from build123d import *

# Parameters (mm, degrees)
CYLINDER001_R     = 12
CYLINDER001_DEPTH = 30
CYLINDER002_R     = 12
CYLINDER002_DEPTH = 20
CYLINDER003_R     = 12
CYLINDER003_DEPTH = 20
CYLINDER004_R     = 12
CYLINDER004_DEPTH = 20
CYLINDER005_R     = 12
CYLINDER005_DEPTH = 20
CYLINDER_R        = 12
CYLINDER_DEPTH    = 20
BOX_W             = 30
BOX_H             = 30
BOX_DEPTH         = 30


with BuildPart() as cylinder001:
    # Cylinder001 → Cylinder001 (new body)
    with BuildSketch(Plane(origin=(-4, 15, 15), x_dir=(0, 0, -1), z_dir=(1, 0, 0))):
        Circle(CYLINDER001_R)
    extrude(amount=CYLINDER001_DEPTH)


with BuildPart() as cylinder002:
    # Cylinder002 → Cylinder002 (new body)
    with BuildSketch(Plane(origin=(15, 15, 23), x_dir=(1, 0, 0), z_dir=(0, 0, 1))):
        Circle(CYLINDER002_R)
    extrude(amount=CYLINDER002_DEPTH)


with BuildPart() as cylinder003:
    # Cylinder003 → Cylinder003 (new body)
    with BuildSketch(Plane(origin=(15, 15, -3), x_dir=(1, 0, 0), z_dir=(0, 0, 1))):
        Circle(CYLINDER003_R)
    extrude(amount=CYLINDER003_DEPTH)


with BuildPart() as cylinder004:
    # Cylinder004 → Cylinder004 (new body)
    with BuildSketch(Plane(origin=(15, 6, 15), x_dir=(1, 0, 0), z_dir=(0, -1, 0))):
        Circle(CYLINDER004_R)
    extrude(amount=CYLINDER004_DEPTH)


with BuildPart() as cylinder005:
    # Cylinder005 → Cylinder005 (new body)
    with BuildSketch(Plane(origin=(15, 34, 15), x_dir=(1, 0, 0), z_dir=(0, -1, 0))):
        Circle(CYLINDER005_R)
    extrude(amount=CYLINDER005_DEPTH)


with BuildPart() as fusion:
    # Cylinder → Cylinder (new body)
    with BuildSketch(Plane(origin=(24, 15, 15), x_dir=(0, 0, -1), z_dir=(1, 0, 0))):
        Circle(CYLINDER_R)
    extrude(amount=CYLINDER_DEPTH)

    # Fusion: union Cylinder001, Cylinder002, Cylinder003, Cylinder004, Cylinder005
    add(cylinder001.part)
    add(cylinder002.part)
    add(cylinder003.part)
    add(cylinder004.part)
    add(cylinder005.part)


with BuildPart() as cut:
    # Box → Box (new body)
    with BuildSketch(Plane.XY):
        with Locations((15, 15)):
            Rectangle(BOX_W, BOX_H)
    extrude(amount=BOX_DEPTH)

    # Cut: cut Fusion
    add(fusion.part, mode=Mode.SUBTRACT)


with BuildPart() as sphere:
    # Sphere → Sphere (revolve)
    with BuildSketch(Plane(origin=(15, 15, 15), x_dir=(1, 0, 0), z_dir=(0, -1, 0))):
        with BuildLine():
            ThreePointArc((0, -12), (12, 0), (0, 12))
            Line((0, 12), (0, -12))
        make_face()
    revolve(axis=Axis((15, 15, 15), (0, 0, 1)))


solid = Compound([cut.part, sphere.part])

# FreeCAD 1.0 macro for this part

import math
import FreeCAD as App
import Part
import Sketcher


def add_polygon(sketch, points):
    """Adds a closed chain of lines whose ends are joined by coincident constraints."""
    first, n = sketch.GeometryCount, len(points)
    for a, b in zip(points, points[1:] + points[:1]):
        sketch.addGeometry(Part.LineSegment(App.Vector(*a, 0), App.Vector(*b, 0)), False)
    for i in range(n):
        sketch.addConstraint(Sketcher.Constraint("Coincident", first + i, 2, first + (i + 1) % n, 1))

doc = App.newDocument("Part")
body = doc.addObject("PartDesign::Body", "Body")

# Sketch on YZ plane
sketch1 = body.newObject("Sketcher::SketchObject", "Sketch")
sketch1.AttachmentSupport = (doc.getObject("YZ_Plane"), [""])
sketch1.MapMode = "FlatFace"
sketch1.AttachmentOffset = App.Placement(App.Vector(0, 0, -4), App.Rotation())
sketch1.addGeometry(Part.Circle(App.Vector(15, 15, 0), App.Vector(0, 0, 1), 12), False)
sketch1.addConstraint([
    Sketcher.Constraint("Diameter", 0, 24.0),
    Sketcher.Constraint("DistanceX", -1, 1, 0, 3, 15.0),
    Sketcher.Constraint("DistanceY", -1, 1, 0, 3, 15.0),
])
pad1 = body.newObject("PartDesign::Pad", "Pad")
pad1.Profile = sketch1
pad1.Length = 30
body2 = doc.addObject("PartDesign::Body", "Body001")

# Sketch on XY plane
sketch2 = body2.newObject("Sketcher::SketchObject", "Sketch001")
sketch2.AttachmentSupport = (doc.getObject("XY_Plane001"), [""])
sketch2.MapMode = "FlatFace"
sketch2.AttachmentOffset = App.Placement(App.Vector(0, 0, 23), App.Rotation())
sketch2.addGeometry(Part.Circle(App.Vector(15, 15, 0), App.Vector(0, 0, 1), 12), False)
sketch2.addConstraint([
    Sketcher.Constraint("Diameter", 0, 24.0),
    Sketcher.Constraint("DistanceX", -1, 1, 0, 3, 15.0),
    Sketcher.Constraint("DistanceY", -1, 1, 0, 3, 15.0),
])
pad2 = body2.newObject("PartDesign::Pad", "Pad001")
pad2.Profile = sketch2
pad2.Length = 20
body3 = doc.addObject("PartDesign::Body", "Body002")

# Sketch on XY plane
sketch3 = body3.newObject("Sketcher::SketchObject", "Sketch002")
sketch3.AttachmentSupport = (doc.getObject("XY_Plane002"), [""])
sketch3.MapMode = "FlatFace"
sketch3.AttachmentOffset = App.Placement(App.Vector(0, 0, -3), App.Rotation())
sketch3.addGeometry(Part.Circle(App.Vector(15, 15, 0), App.Vector(0, 0, 1), 12), False)
sketch3.addConstraint([
    Sketcher.Constraint("Diameter", 0, 24.0),
    Sketcher.Constraint("DistanceX", -1, 1, 0, 3, 15.0),
    Sketcher.Constraint("DistanceY", -1, 1, 0, 3, 15.0),
])
pad3 = body3.newObject("PartDesign::Pad", "Pad002")
pad3.Profile = sketch3
pad3.Length = 20
body4 = doc.addObject("PartDesign::Body", "Body003")

# Sketch on XZ plane
sketch4 = body4.newObject("Sketcher::SketchObject", "Sketch003")
sketch4.AttachmentSupport = (doc.getObject("XZ_Plane003"), [""])
sketch4.MapMode = "FlatFace"
sketch4.AttachmentOffset = App.Placement(App.Vector(0, 0, -6), App.Rotation())
sketch4.addGeometry(Part.Circle(App.Vector(15, 15, 0), App.Vector(0, 0, 1), 12), False)
sketch4.addConstraint([
    Sketcher.Constraint("Diameter", 0, 24.0),
    Sketcher.Constraint("DistanceX", -1, 1, 0, 3, 15.0),
    Sketcher.Constraint("DistanceY", -1, 1, 0, 3, 15.0),
])
pad4 = body4.newObject("PartDesign::Pad", "Pad003")
pad4.Profile = sketch4
pad4.Length = 20
body5 = doc.addObject("PartDesign::Body", "Body004")

# Sketch on XZ plane
sketch5 = body5.newObject("Sketcher::SketchObject", "Sketch004")
sketch5.AttachmentSupport = (doc.getObject("XZ_Plane004"), [""])
sketch5.MapMode = "FlatFace"
sketch5.AttachmentOffset = App.Placement(App.Vector(0, 0, -34), App.Rotation())
sketch5.addGeometry(Part.Circle(App.Vector(15, 15, 0), App.Vector(0, 0, 1), 12), False)
sketch5.addConstraint([
    Sketcher.Constraint("Diameter", 0, 24.0),
    Sketcher.Constraint("DistanceX", -1, 1, 0, 3, 15.0),
    Sketcher.Constraint("DistanceY", -1, 1, 0, 3, 15.0),
])
pad5 = body5.newObject("PartDesign::Pad", "Pad004")
pad5.Profile = sketch5
pad5.Length = 20
body6 = doc.addObject("PartDesign::Body", "Body005")

# Sketch on YZ plane
sketch6 = body6.newObject("Sketcher::SketchObject", "Sketch005")
sketch6.AttachmentSupport = (doc.getObject("YZ_Plane005"), [""])
sketch6.MapMode = "FlatFace"
sketch6.AttachmentOffset = App.Placement(App.Vector(0, 0, 24), App.Rotation())
sketch6.addGeometry(Part.Circle(App.Vector(15, 15, 0), App.Vector(0, 0, 1), 12), False)
sketch6.addConstraint([
    Sketcher.Constraint("Diameter", 0, 24.0),
    Sketcher.Constraint("DistanceX", -1, 1, 0, 3, 15.0),
    Sketcher.Constraint("DistanceY", -1, 1, 0, 3, 15.0),
])
pad6 = body6.newObject("PartDesign::Pad", "Pad005")
pad6.Profile = sketch6
pad6.Length = 20
doc.recompute()

boolean = body6.newObject("PartDesign::Boolean", "Boolean")
boolean.Type = "Fuse"
boolean.addObjects([body])
doc.recompute()

boolean2 = body6.newObject("PartDesign::Boolean", "Boolean001")
boolean2.Type = "Fuse"
boolean2.addObjects([body2])
doc.recompute()

boolean3 = body6.newObject("PartDesign::Boolean", "Boolean002")
boolean3.Type = "Fuse"
boolean3.addObjects([body3])
doc.recompute()

boolean4 = body6.newObject("PartDesign::Boolean", "Boolean003")
boolean4.Type = "Fuse"
boolean4.addObjects([body4])
doc.recompute()

boolean5 = body6.newObject("PartDesign::Boolean", "Boolean004")
boolean5.Type = "Fuse"
boolean5.addObjects([body5])
body7 = doc.addObject("PartDesign::Body", "Body006")

# Sketch on XY plane
sketch7 = body7.newObject("Sketcher::SketchObject", "Sketch006")
sketch7.AttachmentSupport = (doc.getObject("XY_Plane006"), [""])
sketch7.MapMode = "FlatFace"
add_polygon(sketch7, [(0, 30), (0, 0), (30, 0), (30, 30)])  # lines 0-3
sketch7.addConstraint([
    Sketcher.Constraint("Vertical", 0),
    Sketcher.Constraint("Horizontal", 1),
    Sketcher.Constraint("Vertical", 2),
    Sketcher.Constraint("Horizontal", 3),
    Sketcher.Constraint("Coincident", 0, 2, -1, 1),
    Sketcher.Constraint("Equal", 3, 0),
    Sketcher.Constraint("DistanceX", 1, 1, 1, 2, 30.0),
])
pad7 = body7.newObject("PartDesign::Pad", "Pad006")
pad7.Profile = sketch7
pad7.Length = 30
doc.recompute()

boolean6 = body7.newObject("PartDesign::Boolean", "Boolean005")
boolean6.Type = "Cut"
boolean6.addObjects([body6])
body8 = doc.addObject("PartDesign::Body", "Body007")

# Sketch on XZ plane
sketch8 = body8.newObject("Sketcher::SketchObject", "Sketch007")
sketch8.AttachmentSupport = (doc.getObject("XZ_Plane007"), [""])
sketch8.MapMode = "FlatFace"
sketch8.AttachmentOffset = App.Placement(App.Vector(0, 0, -15), App.Rotation())
sketch8.addGeometry([
    Part.ArcOfCircle(Part.Circle(App.Vector(15, 15, 0), App.Vector(0, 0, 1), 12), math.radians(-90), math.radians(90)),
    Part.LineSegment(App.Vector(15, 27, 0), App.Vector(15, 3, 0)),
], False)
sketch8.addGeometry(Part.LineSegment(App.Vector(15, 3, 0), App.Vector(15, 27, 0)), True)  # axis
sketch8.addConstraint([
    Sketcher.Constraint("Coincident", 0, 1, 1, 2),
    Sketcher.Constraint("Coincident", 1, 1, 0, 2),
    Sketcher.Constraint("Vertical", 1),
    Sketcher.Constraint("Vertical", 2),
    Sketcher.Constraint("Coincident", 2, 1, 0, 1),
    Sketcher.Constraint("Equal", 1, 2),
    Sketcher.Constraint("Radius", 0, 12.0),
    Sketcher.Constraint("DistanceX", -1, 1, 0, 3, 15.0),
    Sketcher.Constraint("DistanceY", -1, 1, 0, 3, 15.0),
    Sketcher.Constraint("DistanceX", -1, 1, 0, 1, 15.0),
])
revolution = body8.newObject("PartDesign::Revolution", "Revolution")
revolution.Profile = sketch8
revolution.ReferenceAxis = (sketch8, ["Axis0"])
revolution.Angle = 360

doc.recompute()
